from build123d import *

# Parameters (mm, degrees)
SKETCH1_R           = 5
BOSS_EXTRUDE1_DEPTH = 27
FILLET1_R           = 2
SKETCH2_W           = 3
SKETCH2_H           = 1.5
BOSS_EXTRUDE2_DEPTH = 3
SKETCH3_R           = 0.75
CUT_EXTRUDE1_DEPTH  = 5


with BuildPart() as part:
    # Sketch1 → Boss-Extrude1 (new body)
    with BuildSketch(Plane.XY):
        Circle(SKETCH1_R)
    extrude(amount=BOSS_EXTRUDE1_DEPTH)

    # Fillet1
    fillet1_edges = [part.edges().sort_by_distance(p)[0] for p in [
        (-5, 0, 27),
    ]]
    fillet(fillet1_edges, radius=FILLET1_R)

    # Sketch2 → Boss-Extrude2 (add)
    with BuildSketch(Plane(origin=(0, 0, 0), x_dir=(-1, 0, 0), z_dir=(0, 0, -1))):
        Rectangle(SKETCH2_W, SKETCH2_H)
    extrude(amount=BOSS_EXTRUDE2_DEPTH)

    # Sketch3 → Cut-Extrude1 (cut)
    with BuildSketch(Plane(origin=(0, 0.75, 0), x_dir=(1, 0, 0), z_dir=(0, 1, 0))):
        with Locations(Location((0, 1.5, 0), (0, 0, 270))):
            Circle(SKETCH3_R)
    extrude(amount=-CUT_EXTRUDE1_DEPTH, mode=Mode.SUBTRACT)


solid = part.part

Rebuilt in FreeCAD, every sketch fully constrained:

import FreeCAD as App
import Part
import Sketcher

V = App.Vector
Q = App.Units.Quantity


def edges_at(feature, points):
    """Names of the edges that pass closest to the given points."""
    edges = feature.Shape.Edges
    near = lambda p: min(range(len(edges)), key=lambda i: edges[i].distToShape(Part.Vertex(*p))[0])
    return sorted({f"Edge{near(p) + 1}" for p in points})


def add_polygon(sketch, points):
    """Adds a closed chain of lines whose ends are joined by coincident constraints."""
    first, n = sketch.GeometryCount, len(points)
    for a, b in zip(points, points[1:] + points[:1]):
        sketch.addGeometry(Part.LineSegment(App.Vector(*a, 0), App.Vector(*b, 0)), False)
    for i in range(n):
        sketch.addConstraint(Sketcher.Constraint("Coincident", first + i, 2, first + (i + 1) % n, 1))

doc = App.newDocument("Part")
params = doc.addObject("Spreadsheet::Sheet", "Params")
for row, (alias, value) in enumerate([
    ("sketch1_diameter", "10 mm"),
    ("pad1_length", "27 mm"),
    ("fillet_radius", "2 mm"),
    ("sketch2_width", "3 mm"),
    ("sketch2_height", "1.5 mm"),
    ("pad2_length", "3 mm"),
    ("sketch3_diameter", "1.5 mm"),
    ("pocket1_length", "5 mm"),
], start=1):
    params.set(f"A{row}", alias)
    params.set(f"B{row}", "=" + value)
    params.setAlias(f"B{row}", alias)

body = doc.addObject("PartDesign::Body", "Body")

# Sketch on XY plane
sketch1 = body.newObject("Sketcher::SketchObject", "Sketch")
sketch1.AttachmentSupport = (doc.getObject("XY_Plane"), [""])
sketch1.MapMode = "FlatFace"
sketch1.addGeometry(Part.Circle(V(0, 0, 0), V(0, 0, 1), 5), False)
sketch1.addConstraint([
    Sketcher.Constraint("Coincident", 0, 3, -1, 1),
    Sketcher.Constraint("Diameter", 0, Q("10 mm")),
])
sketch1.setExpression("Constraints[1]", "Params.sketch1_diameter")
pad1 = body.newObject("PartDesign::Pad", "Pad")
pad1.Profile = sketch1
pad1.setExpression("Length", "Params.pad1_length")
doc.recompute()

fillet = body.newObject("PartDesign::Fillet", "Fillet")
fillet.Base = (pad1, edges_at(pad1, [(-5, 0, 27)]))
fillet.setExpression("Radius", "Params.fillet_radius")

# Sketch on XY plane
sketch2 = body.newObject("Sketcher::SketchObject", "Sketch001")
sketch2.AttachmentSupport = (doc.getObject("XY_Plane"), [""])
sketch2.MapMode = "FlatFace"
add_polygon(sketch2, [(1.5, 0.8), (1.5, -0.8), (-1.5, -0.8), (-1.5, 0.8)])  # lines 0-3
sketch2.addConstraint([
    Sketcher.Constraint("Vertical", 0),
    Sketcher.Constraint("Horizontal", 1),
    Sketcher.Constraint("Vertical", 2),
    Sketcher.Constraint("Horizontal", 3),
    Sketcher.Constraint("Symmetric", 0, 2, 2, 2, -1, 1),
    Sketcher.Constraint("DistanceX", 1, 2, 1, 1, Q("3 mm")),
    Sketcher.Constraint("DistanceY", 0, 2, 0, 1, Q("1.5 mm")),
])
sketch2.setExpression("Constraints[9]", "Params.sketch2_width")
sketch2.setExpression("Constraints[10]", "Params.sketch2_height")
pad2 = body.newObject("PartDesign::Pad", "Pad001")
pad2.Profile = sketch2
pad2.setExpression("Length", "Params.pad2_length")
pad2.Reversed = True

# Sketch on XZ plane
sketch3 = body.newObject("Sketcher::SketchObject", "Sketch002")
sketch3.AttachmentSupport = (doc.getObject("XZ_Plane"), [""])
sketch3.MapMode = "FlatFace"
sketch3.AttachmentOffset = App.Placement(V(0, 0, -0.75), App.Rotation())
sketch3.addGeometry(Part.Circle(V(0, -1.5, 0), V(0, 0, 1), 0.8), False)
sketch3.addConstraint([
    Sketcher.Constraint("PointOnObject", 0, 3, -2),
    Sketcher.Constraint("Diameter", 0, Q("1.5 mm")),
    Sketcher.Constraint("DistanceY", 0, 3, -1, 1, Q("1.5 mm")),
])
sketch3.setExpression("Constraints[1]", "Params.sketch3_diameter")
pocket1 = body.newObject("PartDesign::Pocket", "Pocket")
pocket1.Profile = sketch3
pocket1.setExpression("Length", "Params.pocket1_length")
pocket1.Reversed = True

doc.recompute()
